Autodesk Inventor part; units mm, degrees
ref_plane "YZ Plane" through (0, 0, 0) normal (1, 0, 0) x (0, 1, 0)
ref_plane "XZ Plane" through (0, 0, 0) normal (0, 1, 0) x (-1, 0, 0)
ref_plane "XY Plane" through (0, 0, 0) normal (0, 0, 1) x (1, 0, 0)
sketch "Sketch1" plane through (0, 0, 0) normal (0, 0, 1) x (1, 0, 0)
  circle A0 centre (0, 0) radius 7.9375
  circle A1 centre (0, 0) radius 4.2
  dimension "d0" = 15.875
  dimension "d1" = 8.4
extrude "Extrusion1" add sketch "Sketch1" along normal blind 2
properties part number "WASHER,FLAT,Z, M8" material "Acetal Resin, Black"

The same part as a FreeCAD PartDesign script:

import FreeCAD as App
import Part
import Sketcher
from FreeCAD import Vector

doc = App.newDocument("Part")
body = doc.addObject("PartDesign::Body", "Body")

# Sketch on XY plane
sketch1 = doc.addObject("Sketcher::SketchObject", "Sketch")
body.addObject(sketch1)
sketch1.AttachmentSupport = (doc.XY_Plane, [""])
sketch1.MapMode = "FlatFace"
sketch1.addGeometry(Part.Circle(Vector(0, 0, 0), Vector(0, 0, 1), 7.9), False)
sketch1.addGeometry(Part.Circle(Vector(0, 0, 0), Vector(0, 0, 1), 4.2), False)
sketch1.addConstraint(Sketcher.Constraint("Coincident", 0, 3, -1, 1))
sketch1.addConstraint(Sketcher.Constraint("Coincident", 1, 3, -1, 1))
sketch1.addConstraint(Sketcher.Constraint("Diameter", 1, 8.4))
sketch1.addConstraint(Sketcher.Constraint("Diameter", 0, 15.875))
pad1 = doc.addObject("PartDesign::Pad", "Pad")
body.addObject(pad1)
pad1.Profile = sketch1
pad1.Length = 2

doc.recompute()
